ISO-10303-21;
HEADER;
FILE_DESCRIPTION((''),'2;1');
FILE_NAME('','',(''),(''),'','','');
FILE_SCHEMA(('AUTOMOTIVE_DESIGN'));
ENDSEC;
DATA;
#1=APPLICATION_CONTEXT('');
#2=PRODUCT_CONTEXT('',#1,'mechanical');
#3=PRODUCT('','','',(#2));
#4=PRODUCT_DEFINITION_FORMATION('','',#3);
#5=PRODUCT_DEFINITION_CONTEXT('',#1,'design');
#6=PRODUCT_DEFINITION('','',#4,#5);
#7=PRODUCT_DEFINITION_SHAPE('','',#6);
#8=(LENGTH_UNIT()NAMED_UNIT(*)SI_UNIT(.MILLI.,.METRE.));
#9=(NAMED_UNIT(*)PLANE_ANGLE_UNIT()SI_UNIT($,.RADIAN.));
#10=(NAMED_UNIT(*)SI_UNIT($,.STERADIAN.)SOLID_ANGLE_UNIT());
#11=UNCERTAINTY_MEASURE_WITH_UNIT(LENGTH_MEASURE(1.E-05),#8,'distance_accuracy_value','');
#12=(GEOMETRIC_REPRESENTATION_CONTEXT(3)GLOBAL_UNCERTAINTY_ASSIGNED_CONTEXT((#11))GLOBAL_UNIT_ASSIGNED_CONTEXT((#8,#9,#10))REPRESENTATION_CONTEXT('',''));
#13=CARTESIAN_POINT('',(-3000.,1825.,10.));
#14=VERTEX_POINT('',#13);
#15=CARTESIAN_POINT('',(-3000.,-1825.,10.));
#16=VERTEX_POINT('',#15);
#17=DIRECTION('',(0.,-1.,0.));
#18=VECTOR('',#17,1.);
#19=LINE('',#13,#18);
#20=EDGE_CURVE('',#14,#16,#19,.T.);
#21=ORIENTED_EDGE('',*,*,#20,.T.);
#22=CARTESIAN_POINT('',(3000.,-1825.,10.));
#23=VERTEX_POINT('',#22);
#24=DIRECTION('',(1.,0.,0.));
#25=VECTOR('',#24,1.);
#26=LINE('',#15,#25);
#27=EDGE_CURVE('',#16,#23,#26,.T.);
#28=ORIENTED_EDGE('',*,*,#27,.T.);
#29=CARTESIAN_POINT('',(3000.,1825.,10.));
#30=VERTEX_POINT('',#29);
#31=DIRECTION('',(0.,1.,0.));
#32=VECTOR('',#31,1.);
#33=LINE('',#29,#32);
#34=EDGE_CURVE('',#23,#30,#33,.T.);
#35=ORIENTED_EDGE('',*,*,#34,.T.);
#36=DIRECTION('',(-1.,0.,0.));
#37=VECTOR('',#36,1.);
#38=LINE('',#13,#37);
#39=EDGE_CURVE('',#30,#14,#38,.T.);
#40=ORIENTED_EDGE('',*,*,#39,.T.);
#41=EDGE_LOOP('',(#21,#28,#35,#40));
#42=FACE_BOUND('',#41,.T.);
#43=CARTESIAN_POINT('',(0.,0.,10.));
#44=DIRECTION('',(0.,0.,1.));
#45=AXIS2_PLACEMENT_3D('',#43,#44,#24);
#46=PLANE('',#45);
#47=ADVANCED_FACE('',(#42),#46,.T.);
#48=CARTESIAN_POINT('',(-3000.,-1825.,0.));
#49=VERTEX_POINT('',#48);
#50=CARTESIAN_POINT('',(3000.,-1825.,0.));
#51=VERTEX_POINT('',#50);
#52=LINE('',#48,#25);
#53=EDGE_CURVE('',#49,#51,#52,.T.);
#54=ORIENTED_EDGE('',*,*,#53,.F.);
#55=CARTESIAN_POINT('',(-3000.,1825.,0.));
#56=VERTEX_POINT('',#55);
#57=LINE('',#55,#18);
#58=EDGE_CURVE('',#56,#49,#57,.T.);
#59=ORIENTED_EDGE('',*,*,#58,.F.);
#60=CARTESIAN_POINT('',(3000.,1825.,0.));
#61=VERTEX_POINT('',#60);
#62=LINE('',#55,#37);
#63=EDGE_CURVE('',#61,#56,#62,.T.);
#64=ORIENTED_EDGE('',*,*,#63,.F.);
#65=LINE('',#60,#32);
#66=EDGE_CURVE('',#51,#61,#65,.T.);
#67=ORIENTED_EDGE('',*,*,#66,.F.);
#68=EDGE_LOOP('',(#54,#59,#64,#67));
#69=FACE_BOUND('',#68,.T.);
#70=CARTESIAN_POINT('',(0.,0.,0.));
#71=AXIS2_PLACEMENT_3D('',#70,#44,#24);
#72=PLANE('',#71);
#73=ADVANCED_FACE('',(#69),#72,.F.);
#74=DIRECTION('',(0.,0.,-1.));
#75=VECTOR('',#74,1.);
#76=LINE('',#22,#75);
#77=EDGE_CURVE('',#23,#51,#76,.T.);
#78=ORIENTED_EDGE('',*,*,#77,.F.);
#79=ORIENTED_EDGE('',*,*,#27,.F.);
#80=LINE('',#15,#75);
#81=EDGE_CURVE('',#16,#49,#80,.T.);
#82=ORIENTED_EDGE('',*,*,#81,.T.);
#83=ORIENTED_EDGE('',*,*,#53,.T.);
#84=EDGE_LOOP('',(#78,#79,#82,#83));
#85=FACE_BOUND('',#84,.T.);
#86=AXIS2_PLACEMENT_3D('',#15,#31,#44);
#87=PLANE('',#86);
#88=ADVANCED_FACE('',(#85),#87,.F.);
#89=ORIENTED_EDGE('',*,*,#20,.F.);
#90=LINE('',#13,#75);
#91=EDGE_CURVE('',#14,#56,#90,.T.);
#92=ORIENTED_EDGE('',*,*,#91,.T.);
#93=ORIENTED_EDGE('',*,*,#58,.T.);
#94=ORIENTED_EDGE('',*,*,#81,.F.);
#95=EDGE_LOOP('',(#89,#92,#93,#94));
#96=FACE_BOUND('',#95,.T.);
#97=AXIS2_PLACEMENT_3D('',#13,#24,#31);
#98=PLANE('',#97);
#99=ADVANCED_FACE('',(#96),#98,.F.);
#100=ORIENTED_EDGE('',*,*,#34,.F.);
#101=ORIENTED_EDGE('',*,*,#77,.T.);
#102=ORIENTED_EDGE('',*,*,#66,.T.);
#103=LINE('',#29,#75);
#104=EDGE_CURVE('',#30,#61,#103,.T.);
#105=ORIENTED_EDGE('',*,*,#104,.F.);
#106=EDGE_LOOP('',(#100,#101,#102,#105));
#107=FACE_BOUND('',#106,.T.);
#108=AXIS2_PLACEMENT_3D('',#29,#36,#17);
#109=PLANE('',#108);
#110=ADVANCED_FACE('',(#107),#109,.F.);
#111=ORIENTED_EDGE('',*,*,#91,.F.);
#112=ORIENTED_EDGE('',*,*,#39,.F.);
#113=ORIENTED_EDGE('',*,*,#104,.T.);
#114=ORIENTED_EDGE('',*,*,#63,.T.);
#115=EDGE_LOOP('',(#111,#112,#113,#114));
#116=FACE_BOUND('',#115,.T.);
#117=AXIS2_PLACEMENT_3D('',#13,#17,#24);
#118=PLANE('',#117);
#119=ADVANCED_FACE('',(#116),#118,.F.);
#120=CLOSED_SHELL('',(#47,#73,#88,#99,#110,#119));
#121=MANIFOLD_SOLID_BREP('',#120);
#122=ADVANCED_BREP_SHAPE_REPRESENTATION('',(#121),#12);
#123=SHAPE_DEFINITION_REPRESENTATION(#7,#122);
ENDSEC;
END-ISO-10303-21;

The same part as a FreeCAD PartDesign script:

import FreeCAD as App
import Part
import Sketcher
from FreeCAD import Vector

doc = App.newDocument("Part")
body = doc.addObject("PartDesign::Body", "Body")

sketch1 = doc.addObject("Sketcher::SketchObject", "Sketch")
body.addObject(sketch1)
sketch1.AttachmentSupport = (doc.XY_Plane, [""])
sketch1.MapMode = "FlatFace"
sketch1.addGeometry([
    Part.LineSegment(Vector(-3000, 1825, 0), Vector(-3000, -1825, 0)),
    Part.LineSegment(Vector(-3000, -1825, 0), Vector(3000, -1825, 0)),
    Part.LineSegment(Vector(3000, -1825, 0), Vector(3000, 1825, 0)),
    Part.LineSegment(Vector(3000, 1825, 0), Vector(-3000, 1825, 0)),
], False)
sketch1.addConstraint([
    Sketcher.Constraint("Coincident", 0, 2, 1, 1),
    Sketcher.Constraint("Coincident", 1, 2, 2, 1),
    Sketcher.Constraint("Coincident", 2, 2, 3, 1),
    Sketcher.Constraint("Coincident", 3, 2, 0, 1),
    Sketcher.Constraint("Vertical", 0),
    Sketcher.Constraint("Horizontal", 1),
    Sketcher.Constraint("Vertical", 2),
    Sketcher.Constraint("Horizontal", 3),
    Sketcher.Constraint("Symmetric", 0, 2, 2, 2, -1, 1),
    Sketcher.Constraint("DistanceX", 1, 1, 1, 2, 6000.0),
    Sketcher.Constraint("DistanceY", 0, 2, 0, 1, 3650.0),
])
pad1 = doc.addObject("PartDesign::Pad", "Pad")
body.addObject(pad1)
pad1.Profile = sketch1
pad1.Length = 10

doc.recompute()
